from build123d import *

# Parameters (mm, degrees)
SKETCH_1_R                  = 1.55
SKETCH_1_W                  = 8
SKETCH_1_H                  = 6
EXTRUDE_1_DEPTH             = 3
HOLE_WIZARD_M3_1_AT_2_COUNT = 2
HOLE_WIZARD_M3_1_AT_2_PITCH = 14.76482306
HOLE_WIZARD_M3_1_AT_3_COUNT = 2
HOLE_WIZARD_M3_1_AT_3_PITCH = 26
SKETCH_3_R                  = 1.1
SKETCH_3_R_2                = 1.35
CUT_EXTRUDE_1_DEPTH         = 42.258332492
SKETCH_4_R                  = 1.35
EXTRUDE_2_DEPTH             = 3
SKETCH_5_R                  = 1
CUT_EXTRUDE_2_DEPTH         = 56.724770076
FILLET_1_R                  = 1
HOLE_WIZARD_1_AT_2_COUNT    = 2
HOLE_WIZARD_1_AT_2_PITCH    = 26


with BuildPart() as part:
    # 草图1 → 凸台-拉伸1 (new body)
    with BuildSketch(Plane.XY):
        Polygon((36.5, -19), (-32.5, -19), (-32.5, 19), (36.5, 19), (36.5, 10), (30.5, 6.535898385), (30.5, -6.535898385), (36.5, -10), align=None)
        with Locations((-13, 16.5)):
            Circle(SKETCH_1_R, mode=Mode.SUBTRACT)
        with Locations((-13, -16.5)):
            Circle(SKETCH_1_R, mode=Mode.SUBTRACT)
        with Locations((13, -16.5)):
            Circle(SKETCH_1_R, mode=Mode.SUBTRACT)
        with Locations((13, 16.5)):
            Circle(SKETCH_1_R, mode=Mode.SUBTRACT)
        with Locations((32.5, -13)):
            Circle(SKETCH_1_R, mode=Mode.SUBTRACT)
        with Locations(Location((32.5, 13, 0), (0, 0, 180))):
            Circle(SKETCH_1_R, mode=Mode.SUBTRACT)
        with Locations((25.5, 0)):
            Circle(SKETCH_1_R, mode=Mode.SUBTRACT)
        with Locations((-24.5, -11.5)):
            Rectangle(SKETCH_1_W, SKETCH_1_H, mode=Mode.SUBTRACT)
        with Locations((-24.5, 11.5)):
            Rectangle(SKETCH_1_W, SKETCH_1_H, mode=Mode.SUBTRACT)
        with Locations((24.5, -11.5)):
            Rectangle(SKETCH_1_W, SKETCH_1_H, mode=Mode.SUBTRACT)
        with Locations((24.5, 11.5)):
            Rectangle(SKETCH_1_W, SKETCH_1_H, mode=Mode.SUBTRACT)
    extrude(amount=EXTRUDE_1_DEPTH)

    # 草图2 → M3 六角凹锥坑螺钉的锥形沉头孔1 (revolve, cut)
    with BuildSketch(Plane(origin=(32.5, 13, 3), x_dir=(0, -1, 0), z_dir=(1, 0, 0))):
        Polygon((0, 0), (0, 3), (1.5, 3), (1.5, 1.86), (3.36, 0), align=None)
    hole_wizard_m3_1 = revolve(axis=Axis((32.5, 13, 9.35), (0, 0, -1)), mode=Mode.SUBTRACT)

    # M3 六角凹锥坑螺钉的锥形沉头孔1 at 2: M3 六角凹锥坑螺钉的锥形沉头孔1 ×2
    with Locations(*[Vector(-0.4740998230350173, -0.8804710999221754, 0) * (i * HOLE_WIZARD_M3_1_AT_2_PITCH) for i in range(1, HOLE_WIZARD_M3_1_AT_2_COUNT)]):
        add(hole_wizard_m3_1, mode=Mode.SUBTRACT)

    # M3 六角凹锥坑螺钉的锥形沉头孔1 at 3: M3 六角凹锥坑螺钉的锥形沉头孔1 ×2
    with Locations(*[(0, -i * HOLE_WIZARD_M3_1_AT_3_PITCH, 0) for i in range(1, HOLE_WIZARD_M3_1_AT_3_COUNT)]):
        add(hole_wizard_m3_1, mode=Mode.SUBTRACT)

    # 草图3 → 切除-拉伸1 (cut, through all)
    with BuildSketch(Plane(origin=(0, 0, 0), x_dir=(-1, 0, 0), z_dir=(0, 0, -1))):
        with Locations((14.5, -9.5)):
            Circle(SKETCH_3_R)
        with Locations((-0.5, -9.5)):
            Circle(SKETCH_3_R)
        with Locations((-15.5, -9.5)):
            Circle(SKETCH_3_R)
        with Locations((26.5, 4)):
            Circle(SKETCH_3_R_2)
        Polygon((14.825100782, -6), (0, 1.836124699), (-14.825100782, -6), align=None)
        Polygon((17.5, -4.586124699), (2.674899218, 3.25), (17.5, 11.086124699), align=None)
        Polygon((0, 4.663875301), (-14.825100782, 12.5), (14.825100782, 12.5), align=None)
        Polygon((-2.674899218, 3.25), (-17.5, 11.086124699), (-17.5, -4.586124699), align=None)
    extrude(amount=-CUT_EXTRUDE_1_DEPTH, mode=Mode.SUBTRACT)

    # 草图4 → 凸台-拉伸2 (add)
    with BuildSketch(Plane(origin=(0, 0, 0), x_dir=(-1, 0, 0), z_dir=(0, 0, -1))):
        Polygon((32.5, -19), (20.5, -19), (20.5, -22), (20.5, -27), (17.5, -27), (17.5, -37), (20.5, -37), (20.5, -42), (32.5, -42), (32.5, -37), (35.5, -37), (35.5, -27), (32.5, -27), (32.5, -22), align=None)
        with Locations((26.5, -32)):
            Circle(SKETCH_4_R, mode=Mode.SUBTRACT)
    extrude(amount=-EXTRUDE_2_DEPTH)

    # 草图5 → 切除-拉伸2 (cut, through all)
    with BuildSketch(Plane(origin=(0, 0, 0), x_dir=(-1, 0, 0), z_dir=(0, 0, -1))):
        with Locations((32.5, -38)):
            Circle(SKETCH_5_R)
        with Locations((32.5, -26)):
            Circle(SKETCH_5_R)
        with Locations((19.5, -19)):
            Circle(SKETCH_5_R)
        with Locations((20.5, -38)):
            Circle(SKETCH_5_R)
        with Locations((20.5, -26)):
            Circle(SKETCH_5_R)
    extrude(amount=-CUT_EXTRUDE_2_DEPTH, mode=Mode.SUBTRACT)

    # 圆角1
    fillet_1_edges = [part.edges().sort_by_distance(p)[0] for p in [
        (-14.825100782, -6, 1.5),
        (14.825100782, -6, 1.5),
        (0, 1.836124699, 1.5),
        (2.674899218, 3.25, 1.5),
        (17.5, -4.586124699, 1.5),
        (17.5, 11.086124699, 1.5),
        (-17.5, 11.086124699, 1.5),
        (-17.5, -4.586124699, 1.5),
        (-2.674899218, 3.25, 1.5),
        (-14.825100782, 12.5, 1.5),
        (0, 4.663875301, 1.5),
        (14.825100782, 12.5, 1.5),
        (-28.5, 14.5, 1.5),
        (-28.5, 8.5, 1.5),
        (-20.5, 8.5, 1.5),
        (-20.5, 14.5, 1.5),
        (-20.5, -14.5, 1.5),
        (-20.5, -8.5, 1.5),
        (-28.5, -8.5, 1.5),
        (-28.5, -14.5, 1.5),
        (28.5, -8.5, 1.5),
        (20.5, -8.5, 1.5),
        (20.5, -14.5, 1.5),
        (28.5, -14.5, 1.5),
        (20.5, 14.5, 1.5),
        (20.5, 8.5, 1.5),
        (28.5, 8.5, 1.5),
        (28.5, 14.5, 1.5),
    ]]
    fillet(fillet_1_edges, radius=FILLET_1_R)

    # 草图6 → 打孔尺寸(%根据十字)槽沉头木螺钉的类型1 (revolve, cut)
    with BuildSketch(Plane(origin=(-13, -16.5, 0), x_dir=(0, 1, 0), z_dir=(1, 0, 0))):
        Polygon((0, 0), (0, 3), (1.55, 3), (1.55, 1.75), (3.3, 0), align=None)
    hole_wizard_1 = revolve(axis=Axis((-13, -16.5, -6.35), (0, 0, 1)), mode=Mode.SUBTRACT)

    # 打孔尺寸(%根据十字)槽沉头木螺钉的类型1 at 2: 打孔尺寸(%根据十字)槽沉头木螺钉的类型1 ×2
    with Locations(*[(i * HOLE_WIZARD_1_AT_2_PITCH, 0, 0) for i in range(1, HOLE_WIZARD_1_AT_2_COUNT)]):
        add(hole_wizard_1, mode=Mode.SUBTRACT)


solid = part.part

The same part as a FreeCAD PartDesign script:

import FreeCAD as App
import Part
import Sketcher

V = App.Vector
Q = App.Units.Quantity


def edges_at(feature, points):
    """Names of the edges that pass closest to the given points."""
    edges = feature.Shape.Edges
    near = lambda p: min(range(len(edges)), key=lambda i: edges[i].distToShape(Part.Vertex(*p))[0])
    return sorted({f"Edge{near(p) + 1}" for p in points})

doc = App.newDocument("Part")
body = doc.addObject("PartDesign::Body", "Body")

# Sketch on XY plane
sketch1 = body.newObject("Sketcher::SketchObject", "Sketch")
sketch1.AttachmentSupport = (doc.getObject("XY_Plane"), [""])
sketch1.MapMode = "FlatFace"
sketch1.addGeometry(Part.LineSegment(V(-32.5, -19, 0), V(36.5, -19, 0)), False)
sketch1.addGeometry(Part.LineSegment(V(36.5, -19, 0), V(36.5, -10, 0)), False)
sketch1.addGeometry(Part.LineSegment(V(36.5, -10, 0), V(30.5, -6.5, 0)), False)
sketch1.addGeometry(Part.LineSegment(V(30.5, -6.5, 0), V(30.5, 6.5, 0)), False)
sketch1.addGeometry(Part.LineSegment(V(30.5, 6.5, 0), V(36.5, 10, 0)), False)
sketch1.addGeometry(Part.LineSegment(V(36.5, 10, 0), V(36.5, 19, 0)), False)
sketch1.addGeometry(Part.LineSegment(V(36.5, 19, 0), V(-32.5, 19, 0)), False)
sketch1.addGeometry(Part.LineSegment(V(-32.5, 19, 0), V(-32.5, -19, 0)), False)
sketch1.addGeometry(Part.Circle(V(32.5, -13, 0), V(0, 0, 1), 1.6), False)
sketch1.addGeometry(Part.LineSegment(V(20.5, -14.5, 0), V(20.5, -8.5, 0)), False)
sketch1.addGeometry(Part.LineSegment(V(20.5, -8.5, 0), V(28.5, -8.5, 0)), False)
sketch1.addGeometry(Part.LineSegment(V(28.5, -8.5, 0), V(28.5, -14.5, 0)), False)
sketch1.addGeometry(Part.LineSegment(V(28.5, -14.5, 0), V(20.5, -14.5, 0)), False)
sketch1.addGeometry(Part.Circle(V(13, -16.5, 0), V(0, 0, 1), 1.6), False)
sketch1.addGeometry(Part.Circle(V(-13, -16.5, 0), V(0, 0, 1), 1.6), False)
sketch1.addGeometry(Part.LineSegment(V(-28.5, -14.5, 0), V(-28.5, -8.5, 0)), False)
sketch1.addGeometry(Part.LineSegment(V(-28.5, -8.5, 0), V(-20.5, -8.5, 0)), False)
sketch1.addGeometry(Part.LineSegment(V(-20.5, -8.5, 0), V(-20.5, -14.5, 0)), False)
sketch1.addGeometry(Part.LineSegment(V(-20.5, -14.5, 0), V(-28.5, -14.5, 0)), False)
sketch1.addGeometry(Part.Circle(V(25.5, 0, 0), V(0, 0, 1), 1.6), False)
sketch1.addGeometry(Part.Circle(V(32.5, 13, 0), V(0, 0, 1), 1.6), False)
sketch1.addGeometry(Part.LineSegment(V(20.5, 8.5, 0), V(20.5, 14.5, 0)), False)
sketch1.addGeometry(Part.LineSegment(V(20.5, 14.5, 0), V(28.5, 14.5, 0)), False)
sketch1.addGeometry(Part.LineSegment(V(28.5, 14.5, 0), V(28.5, 8.5, 0)), False)
sketch1.addGeometry(Part.LineSegment(V(28.5, 8.5, 0), V(20.5, 8.5, 0)), False)
sketch1.addGeometry(Part.Circle(V(13, 16.5, 0), V(0, 0, 1), 1.6), False)
sketch1.addGeometry(Part.LineSegment(V(-28.5, 8.5, 0), V(-28.5, 14.5, 0)), False)
sketch1.addGeometry(Part.LineSegment(V(-28.5, 14.5, 0), V(-20.5, 14.5, 0)), False)
sketch1.addGeometry(Part.LineSegment(V(-20.5, 14.5, 0), V(-20.5, 8.5, 0)), False)
sketch1.addGeometry(Part.LineSegment(V(-20.5, 8.5, 0), V(-28.5, 8.5, 0)), False)
sketch1.addGeometry(Part.Circle(V(-13, 16.5, 0), V(0, 0, 1), 1.6), False)
sketch1.addConstraint(Sketcher.Constraint("Coincident", 0, 2, 1, 1))
sketch1.addConstraint(Sketcher.Constraint("Coincident", 1, 2, 2, 1))
sketch1.addConstraint(Sketcher.Constraint("Coincident", 2, 2, 3, 1))
sketch1.addConstraint(Sketcher.Constraint("Coincident", 3, 2, 4, 1))
sketch1.addConstraint(Sketcher.Constraint("Coincident", 4, 2, 5, 1))
sketch1.addConstraint(Sketcher.Constraint("Coincident", 5, 2, 6, 1))
sketch1.addConstraint(Sketcher.Constraint("Coincident", 6, 2, 7, 1))
sketch1.addConstraint(Sketcher.Constraint("Coincident", 7, 2, 0, 1))
sketch1.addConstraint(Sketcher.Constraint("Coincident", 9, 2, 10, 1))
sketch1.addConstraint(Sketcher.Constraint("Coincident", 10, 2, 11, 1))
sketch1.addConstraint(Sketcher.Constraint("Coincident", 11, 2, 12, 1))
sketch1.addConstraint(Sketcher.Constraint("Coincident", 12, 2, 9, 1))
sketch1.addConstraint(Sketcher.Constraint("Coincident", 15, 2, 16, 1))
sketch1.addConstraint(Sketcher.Constraint("Coincident", 16, 2, 17, 1))
sketch1.addConstraint(Sketcher.Constraint("Coincident", 17, 2, 18, 1))
sketch1.addConstraint(Sketcher.Constraint("Coincident", 18, 2, 15, 1))
sketch1.addConstraint(Sketcher.Constraint("Coincident", 21, 2, 22, 1))
sketch1.addConstraint(Sketcher.Constraint("Coincident", 22, 2, 23, 1))
sketch1.addConstraint(Sketcher.Constraint("Coincident", 23, 2, 24, 1))
sketch1.addConstraint(Sketcher.Constraint("Coincident", 24, 2, 21, 1))
sketch1.addConstraint(Sketcher.Constraint("Coincident", 26, 2, 27, 1))
sketch1.addConstraint(Sketcher.Constraint("Coincident", 27, 2, 28, 1))
sketch1.addConstraint(Sketcher.Constraint("Coincident", 28, 2, 29, 1))
sketch1.addConstraint(Sketcher.Constraint("Coincident", 29, 2, 26, 1))
sketch1.addConstraint(Sketcher.Constraint("Horizontal", 0))
sketch1.addConstraint(Sketcher.Constraint("Vertical", 1))
sketch1.addConstraint(Sketcher.Constraint("Vertical", 3))
sketch1.addConstraint(Sketcher.Constraint("Vertical", 5))
sketch1.addConstraint(Sketcher.Constraint("Horizontal", 6))
sketch1.addConstraint(Sketcher.Constraint("Vertical", 7))
sketch1.addConstraint(Sketcher.Constraint("Vertical", 9))
sketch1.addConstraint(Sketcher.Constraint("Horizontal", 10))
sketch1.addConstraint(Sketcher.Constraint("Vertical", 11))
sketch1.addConstraint(Sketcher.Constraint("Horizontal", 12))
sketch1.addConstraint(Sketcher.Constraint("Vertical", 15))
sketch1.addConstraint(Sketcher.Constraint("Horizontal", 16))
sketch1.addConstraint(Sketcher.Constraint("Vertical", 17))
sketch1.addConstraint(Sketcher.Constraint("Horizontal", 18))
sketch1.addConstraint(Sketcher.Constraint("Vertical", 21))
sketch1.addConstraint(Sketcher.Constraint("Horizontal", 22))
sketch1.addConstraint(Sketcher.Constraint("Vertical", 23))
sketch1.addConstraint(Sketcher.Constraint("Horizontal", 24))
sketch1.addConstraint(Sketcher.Constraint("Vertical", 26))
sketch1.addConstraint(Sketcher.Constraint("Horizontal", 27))
sketch1.addConstraint(Sketcher.Constraint("Vertical", 28))
sketch1.addConstraint(Sketcher.Constraint("Horizontal", 29))
sketch1.addConstraint(Sketcher.Constraint("Equal", 8, 13))
sketch1.addConstraint(Sketcher.Constraint("Equal", 13, 14))
sketch1.addConstraint(Sketcher.Constraint("Equal", 14, 19))
sketch1.addConstraint(Sketcher.Constraint("Equal", 19, 20))
sketch1.addConstraint(Sketcher.Constraint("Equal", 20, 25))
sketch1.addConstraint(Sketcher.Constraint("Equal", 25, 30))
sketch1.addConstraint(Sketcher.Constraint("Symmetric", 14, 3, 25, 3, -1, 1))
sketch1.addConstraint(Sketcher.Constraint("Symmetric", 13, 3, 30, 3, -1, 1))
sketch1.addConstraint(Sketcher.Constraint("Symmetric", 17, 2, 21, 2, -1, 1))
sketch1.addConstraint(Sketcher.Constraint("Symmetric", 15, 2, 23, 2, -1, 1))
sketch1.addConstraint(Sketcher.Constraint("Symmetric", 11, 2, 26, 2, -1, 1))
sketch1.addConstraint(Sketcher.Constraint("Symmetric", 9, 2, 28, 2, -1, 1))
sketch1.addConstraint(Sketcher.Constraint("Symmetric", 13, 3, 14, 3, -2))
sketch1.addConstraint(Sketcher.Constraint("Symmetric", 10, 2, 15, 2, -2))
sketch1.addConstraint(Sketcher.Constraint("Symmetric", 12, 2, 17, 2, -2))
sketch1.addConstraint(Sketcher.Constraint("Symmetric", 8, 3, 20, 3, -1))
sketch1.addConstraint(Sketcher.Constraint("Symmetric", 1, 2, 4, 2, -1))
sketch1.addConstraint(Sketcher.Constraint("PointOnObject", 19, 3, -1))
sketch1.addConstraint(Sketcher.Constraint("Equal", 1, 5))
sketch1.addConstraint(Sketcher.Constraint("Equal", 2, 4))
sketch1.addConstraint(Sketcher.Constraint("Diameter", 8, 3.1))
sketch1.addConstraint(Sketcher.Constraint("DistanceX", 0, 1, 0, 2, 69.0))
sketch1.addConstraint(Sketcher.Constraint("DistanceX", 10, 1, 10, 2, 8.0))
sketch1.addConstraint(Sketcher.Constraint("DistanceY", 1, 1, 1, 2, 9.0))
sketch1.addConstraint(Sketcher.Constraint("DistanceY", 7, 2, 7, 1, 38.0))
sketch1.addConstraint(Sketcher.Constraint("DistanceY", 9, 1, 9, 2, 6.0))
sketch1.addConstraint(Sketcher.Constraint("Angle", 2, Q("150 deg")))
sketch1.addConstraint(Sketcher.Constraint("DistanceY", 8, 3, -1, 1, 13.0))
sketch1.addConstraint(Sketcher.Constraint("DistanceX", -1, 1, 13, 3, 13.0))
sketch1.addConstraint(Sketcher.Constraint("DistanceX", 19, 3, 8, 3, 7.0))
sketch1.addConstraint(Sketcher.Constraint("DistanceY", 13, 3, 25, 3, 33.0))
sketch1.addConstraint(Sketcher.Constraint("DistanceX", 8, 3, 0, 2, 4.0))
sketch1.addConstraint(Sketcher.Constraint("DistanceX", 2, 2, 8, 3, 2.0))
sketch1.addConstraint(Sketcher.Constraint("DistanceX", 9, 2, 19, 3, 5.0))
sketch1.addConstraint(Sketcher.Constraint("DistanceY", 13, 3, 9, 2, 8.0))
sketch1.addConstraint(Sketcher.Constraint("DistanceX", 7, 2, 15, 2, 4.0))
pad1 = body.newObject("PartDesign::Pad", "Pad")
pad1.Profile = sketch1
pad1.Length = 3

# Sketch on YZ plane
sketch2 = body.newObject("Sketcher::SketchObject", "Sketch001")
sketch2.AttachmentSupport = (doc.getObject("YZ_Plane"), [""])
sketch2.MapMode = "FlatFace"
sketch2.AttachmentOffset = App.Placement(V(0, 0, 32.5), App.Rotation())
sketch2.addGeometry(Part.LineSegment(V(13, 0, 0), V(13, 3, 0)), False)
sketch2.addGeometry(Part.LineSegment(V(13, 3, 0), V(9.6, 3, 0)), False)
sketch2.addGeometry(Part.LineSegment(V(9.6, 3, 0), V(11.5, 1.1, 0)), False)
sketch2.addGeometry(Part.LineSegment(V(11.5, 1.1, 0), V(11.5, 0, 0)), False)
sketch2.addGeometry(Part.LineSegment(V(11.5, 0, 0), V(13, 0, 0)), False)
sketch2.addGeometry(Part.LineSegment(V(13, 3, 0), V(13, 0, 0)), True)  # axis
sketch2.addConstraint(Sketcher.Constraint("Coincident", 0, 2, 1, 1))
sketch2.addConstraint(Sketcher.Constraint("Coincident", 1, 2, 2, 1))
sketch2.addConstraint(Sketcher.Constraint("Coincident", 2, 2, 3, 1))
sketch2.addConstraint(Sketcher.Constraint("Coincident", 3, 2, 4, 1))
sketch2.addConstraint(Sketcher.Constraint("Coincident", 4, 2, 0, 1))
sketch2.addConstraint(Sketcher.Constraint("Vertical", 0))
sketch2.addConstraint(Sketcher.Constraint("Horizontal", 1))
sketch2.addConstraint(Sketcher.Constraint("Vertical", 3))
sketch2.addConstraint(Sketcher.Constraint("Horizontal", 4))
sketch2.addConstraint(Sketcher.Constraint("Vertical", 5))
sketch2.addConstraint(Sketcher.Constraint("Coincident", 5, 1, 0, 2))
sketch2.addConstraint(Sketcher.Constraint("PointOnObject", 3, 2, -1))
sketch2.addConstraint(Sketcher.Constraint("PointOnObject", 5, 2, -1))
sketch2.addConstraint(Sketcher.Constraint("DistanceY", 0, 1, 0, 2, 3.0))
sketch2.addConstraint(Sketcher.Constraint("Angle", 2, Q("-45 deg")))
sketch2.addConstraint(Sketcher.Constraint("DistanceX", 4, 1, 4, 2, 1.5))
sketch2.addConstraint(Sketcher.Constraint("DistanceX", -1, 1, 0, 2, 13.0))
sketch2.addConstraint(Sketcher.Constraint("DistanceX", 1, 2, 1, 1, 3.36))
groove = body.newObject("PartDesign::Groove", "Groove")
groove.Profile = sketch2
groove.ReferenceAxis = (sketch2, ["Axis0"])
groove.Angle = 360
doc.recompute()

datumline = body.newObject("PartDesign::Line", "DatumLine")
datumline.Placement = App.Placement(V(0, 0, 0), App.Rotation(V(0, 0, 1), V(-0.474099823, -0.8804711, 0)))
linearpattern = body.newObject("PartDesign::LinearPattern", "LinearPattern")
linearpattern.Originals = [groove]
linearpattern.Direction = (datumline, [""])
linearpattern.Mode = "offset"
linearpattern.Offset = 14.764823
linearpattern.Occurrences = 2
body.Tip = linearpattern
doc.recompute()

linearpattern2 = body.newObject("PartDesign::LinearPattern", "LinearPattern001")
linearpattern2.Originals = [groove]
linearpattern2.Direction = (doc.getObject("Y_Axis"), [""])
linearpattern2.Mode = "offset"
linearpattern2.Offset = 26
linearpattern2.Occurrences = 2
linearpattern2.Reversed = True
body.Tip = linearpattern2

# Sketch on XY plane
sketch3 = body.newObject("Sketcher::SketchObject", "Sketch002")
sketch3.AttachmentSupport = (doc.getObject("XY_Plane"), [""])
sketch3.MapMode = "FlatFace"
sketch3.addGeometry(Part.Circle(V(-14.5, -9.5, 0), V(0, 0, 1), 1.1), False)
sketch3.addGeometry(Part.Circle(V(0.5, -9.5, 0), V(0, 0, 1), 1.1), False)
sketch3.addGeometry(Part.Circle(V(15.5, -9.5, 0), V(0, 0, 1), 1.1), False)
sketch3.addGeometry(Part.Circle(V(-26.5, 4, 0), V(0, 0, 1), 1.4), False)
sketch3.addGeometry(Part.LineSegment(V(-14.8, -6, 0), V(0, 1.8, 0)), False)
sketch3.addGeometry(Part.LineSegment(V(0, 1.8, 0), V(14.8, -6, 0)), False)
sketch3.addGeometry(Part.LineSegment(V(14.8, -6, 0), V(-14.8, -6, 0)), False)
sketch3.addGeometry(Part.LineSegment(V(-2.7, 3.2, 0), V(-17.5, -4.6, 0)), False)
sketch3.addGeometry(Part.LineSegment(V(-17.5, -4.6, 0), V(-17.5, 11.1, 0)), False)
sketch3.addGeometry(Part.LineSegment(V(-17.5, 11.1, 0), V(-2.7, 3.2, 0)), False)
sketch3.addGeometry(Part.LineSegment(V(14.8, 12.5, 0), V(0, 4.7, 0)), False)
sketch3.addGeometry(Part.LineSegment(V(0, 4.7, 0), V(-14.8, 12.5, 0)), False)
sketch3.addGeometry(Part.LineSegment(V(-14.8, 12.5, 0), V(14.8, 12.5, 0)), False)
sketch3.addGeometry(Part.LineSegment(V(2.7, 3.2, 0), V(17.5, 11.1, 0)), False)
sketch3.addGeometry(Part.LineSegment(V(17.5, 11.1, 0), V(17.5, -4.6, 0)), False)
sketch3.addGeometry(Part.LineSegment(V(17.5, -4.6, 0), V(2.7, 3.2, 0)), False)
sketch3.addConstraint(Sketcher.Constraint("Coincident", 4, 2, 5, 1))
sketch3.addConstraint(Sketcher.Constraint("Coincident", 5, 2, 6, 1))
sketch3.addConstraint(Sketcher.Constraint("Coincident", 6, 2, 4, 1))
sketch3.addConstraint(Sketcher.Constraint("Coincident", 7, 2, 8, 1))
sketch3.addConstraint(Sketcher.Constraint("Coincident", 8, 2, 9, 1))
sketch3.addConstraint(Sketcher.Constraint("Coincident", 9, 2, 7, 1))
sketch3.addConstraint(Sketcher.Constraint("Coincident", 10, 2, 11, 1))
sketch3.addConstraint(Sketcher.Constraint("Coincident", 11, 2, 12, 1))
sketch3.addConstraint(Sketcher.Constraint("Coincident", 12, 2, 10, 1))
sketch3.addConstraint(Sketcher.Constraint("Coincident", 13, 2, 14, 1))
sketch3.addConstraint(Sketcher.Constraint("Coincident", 14, 2, 15, 1))
sketch3.addConstraint(Sketcher.Constraint("Coincident", 15, 2, 13, 1))
sketch3.addConstraint(Sketcher.Constraint("Horizontal", 6))
sketch3.addConstraint(Sketcher.Constraint("Vertical", 8))
sketch3.addConstraint(Sketcher.Constraint("Horizontal", 12))
sketch3.addConstraint(Sketcher.Constraint("Vertical", 14))
sketch3.addConstraint(Sketcher.Constraint("Equal", 0, 1))
sketch3.addConstraint(Sketcher.Constraint("Equal", 1, 2))
sketch3.addConstraint(Sketcher.Constraint("Symmetric", 8, 2, 13, 2, -2))
sketch3.addConstraint(Sketcher.Constraint("Symmetric", 9, 2, 15, 2, -2))
sketch3.addConstraint(Sketcher.Constraint("PointOnObject", 4, 2, -2))
sketch3.addConstraint(Sketcher.Constraint("PointOnObject", 10, 2, -2))
sketch3.addConstraint(Sketcher.Constraint("Parallel", 4, 7))
sketch3.addConstraint(Sketcher.Constraint("Parallel", 5, 9))
sketch3.addConstraint(Sketcher.Constraint("Parallel", 7, 10))
sketch3.addConstraint(Sketcher.Constraint("Parallel", 9, 11))
sketch3.addConstraint(Sketcher.Constraint("Parallel", 10, 13))
sketch3.addConstraint(Sketcher.Constraint("Parallel", 11, 15))
sketch3.addConstraint(Sketcher.Constraint("Horizontal", 0, 3, 1, 3))
sketch3.addConstraint(Sketcher.Constraint("Horizontal", 1, 3, 2, 3))
sketch3.addConstraint(Sketcher.Constraint("Vertical", 6, 2, 11, 2))
sketch3.addConstraint(Sketcher.Constraint("Equal", 5, 7))
sketch3.addConstraint(Sketcher.Constraint("Diameter", 0, 2.2))
sketch3.addConstraint(Sketcher.Constraint("Diameter", 3, 2.7))
sketch3.addConstraint(Sketcher.Constraint("DistanceY", -1, 1, 3, 3, 4.0))
sketch3.addConstraint(Sketcher.Constraint("DistanceY", 5, 2, -1, 1, 6.0))
sketch3.addConstraint(Sketcher.Constraint("DistanceX", 0, 3, 1, 3, 15.0))
sketch3.addConstraint(Sketcher.Constraint("DistanceX", 1, 3, 2, 3, 15.0))
sketch3.addConstraint(Sketcher.Constraint("DistanceX", 3, 3, 0, 3, 12.0))
sketch3.addConstraint(Sketcher.Constraint("DistanceX", 7, 2, 0, 3, 3.0))
sketch3.addConstraint(Sketcher.Constraint("DistanceY", 2, 3, 12, 2, 22.0))
sketch3.addConstraint(Sketcher.Constraint("DistanceX", 2, 3, 13, 2, 2.0))
sketch3.addConstraint(Sketcher.Constraint("DistanceY", 0, 3, -1, 1, 9.5))
sketch3.addConstraint(Sketcher.Constraint("DistanceY", -1, 1, 9, 2, 3.25))
sketch3.addConstraint(Sketcher.Constraint("DistanceX", 6, 2, 6, 1, 29.650202))
sketch3.addConstraint(Sketcher.Constraint("DistanceY", 8, 1, 8, 2, 15.672249))
pocket1 = body.newObject("PartDesign::Pocket", "Pocket")
pocket1.Profile = sketch3
pocket1.Type = "ThroughAll"
pocket1.Reversed = True

# Sketch on XY plane
sketch4 = body.newObject("Sketcher::SketchObject", "Sketch003")
sketch4.AttachmentSupport = (doc.getObject("XY_Plane"), [""])
sketch4.MapMode = "FlatFace"
sketch4.addGeometry(Part.LineSegment(V(-32.5, -19, 0), V(-20.5, -19, 0)), False)
sketch4.addGeometry(Part.LineSegment(V(-20.5, -19, 0), V(-20.5, -27, 0)), False)
sketch4.addGeometry(Part.LineSegment(V(-20.5, -27, 0), V(-17.5, -27, 0)), False)
sketch4.addGeometry(Part.LineSegment(V(-17.5, -27, 0), V(-17.5, -37, 0)), False)
sketch4.addGeometry(Part.LineSegment(V(-17.5, -37, 0), V(-20.5, -37, 0)), False)
sketch4.addGeometry(Part.LineSegment(V(-20.5, -37, 0), V(-20.5, -42, 0)), False)
sketch4.addGeometry(Part.LineSegment(V(-20.5, -42, 0), V(-32.5, -42, 0)), False)
sketch4.addGeometry(Part.LineSegment(V(-32.5, -42, 0), V(-32.5, -37, 0)), False)
sketch4.addGeometry(Part.LineSegment(V(-32.5, -37, 0), V(-35.5, -37, 0)), False)
sketch4.addGeometry(Part.LineSegment(V(-35.5, -37, 0), V(-35.5, -27, 0)), False)
sketch4.addGeometry(Part.LineSegment(V(-35.5, -27, 0), V(-32.5, -27, 0)), False)
sketch4.addGeometry(Part.LineSegment(V(-32.5, -27, 0), V(-32.5, -19, 0)), False)
sketch4.addGeometry(Part.Circle(V(-26.5, -32, 0), V(0, 0, 1), 1.4), False)
sketch4.addConstraint(Sketcher.Constraint("Coincident", 0, 2, 1, 1))
sketch4.addConstraint(Sketcher.Constraint("Coincident", 1, 2, 2, 1))
sketch4.addConstraint(Sketcher.Constraint("Coincident", 2, 2, 3, 1))
sketch4.addConstraint(Sketcher.Constraint("Coincident", 3, 2, 4, 1))
sketch4.addConstraint(Sketcher.Constraint("Coincident", 4, 2, 5, 1))
sketch4.addConstraint(Sketcher.Constraint("Coincident", 5, 2, 6, 1))
sketch4.addConstraint(Sketcher.Constraint("Coincident", 6, 2, 7, 1))
sketch4.addConstraint(Sketcher.Constraint("Coincident", 7, 2, 8, 1))
sketch4.addConstraint(Sketcher.Constraint("Coincident", 8, 2, 9, 1))
sketch4.addConstraint(Sketcher.Constraint("Coincident", 9, 2, 10, 1))
sketch4.addConstraint(Sketcher.Constraint("Coincident", 10, 2, 11, 1))
sketch4.addConstraint(Sketcher.Constraint("Coincident", 11, 2, 0, 1))
sketch4.addConstraint(Sketcher.Constraint("Horizontal", 0))
sketch4.addConstraint(Sketcher.Constraint("Vertical", 1))
sketch4.addConstraint(Sketcher.Constraint("Horizontal", 2))
sketch4.addConstraint(Sketcher.Constraint("Vertical", 3))
sketch4.addConstraint(Sketcher.Constraint("Horizontal", 4))
sketch4.addConstraint(Sketcher.Constraint("Vertical", 5))
sketch4.addConstraint(Sketcher.Constraint("Horizontal", 6))
sketch4.addConstraint(Sketcher.Constraint("Vertical", 7))
sketch4.addConstraint(Sketcher.Constraint("Horizontal", 8))
sketch4.addConstraint(Sketcher.Constraint("Vertical", 9))
sketch4.addConstraint(Sketcher.Constraint("Horizontal", 10))
sketch4.addConstraint(Sketcher.Constraint("Vertical", 11))
sketch4.addConstraint(Sketcher.Constraint("Horizontal", 4, 2, 7, 2))
sketch4.addConstraint(Sketcher.Constraint("Horizontal", 2, 2, 9, 2))
sketch4.addConstraint(Sketcher.Constraint("Vertical", 1, 2, 4, 2))
sketch4.addConstraint(Sketcher.Constraint("Vertical", 7, 2, 10, 2))
sketch4.addConstraint(Sketcher.Constraint("Equal", 4, 8))
sketch4.addConstraint(Sketcher.Constraint("Diameter", 12, 2.7))
sketch4.addConstraint(Sketcher.Constraint("DistanceX", 0, 1, 0, 2, 12.0))
sketch4.addConstraint(Sketcher.Constraint("DistanceX", 2, 1, 2, 2, 3.0))
sketch4.addConstraint(Sketcher.Constraint("DistanceY", 1, 2, 1, 1, 8.0))
sketch4.addConstraint(Sketcher.Constraint("DistanceY", 3, 2, 3, 1, 10.0))
sketch4.addConstraint(Sketcher.Constraint("DistanceY", 5, 2, 5, 1, 5.0))
sketch4.addConstraint(Sketcher.Constraint("DistanceY", 12, 3, -1, 1, 32.0))
sketch4.addConstraint(Sketcher.Constraint("DistanceY", 0, 2, -1, 1, 19.0))
sketch4.addConstraint(Sketcher.Constraint("DistanceX", 12, 3, 0, 2, 6.0))
sketch4.addConstraint(Sketcher.Constraint("DistanceX", 12, 3, -1, 1, 26.5))
pad2 = body.newObject("PartDesign::Pad", "Pad001")
pad2.Profile = sketch4
pad2.Length = 3

# Sketch on XY plane
sketch5 = body.newObject("Sketcher::SketchObject", "Sketch004")
sketch5.AttachmentSupport = (doc.getObject("XY_Plane"), [""])
sketch5.MapMode = "FlatFace"
sketch5.addGeometry(Part.Circle(V(-32.5, -38, 0), V(0, 0, 1), 1), False)
sketch5.addGeometry(Part.Circle(V(-32.5, -26, 0), V(0, 0, 1), 1), False)
sketch5.addGeometry(Part.Circle(V(-19.5, -19, 0), V(0, 0, 1), 1), False)
sketch5.addGeometry(Part.Circle(V(-20.5, -38, 0), V(0, 0, 1), 1), False)
sketch5.addGeometry(Part.Circle(V(-20.5, -26, 0), V(0, 0, 1), 1), False)
sketch5.addConstraint(Sketcher.Constraint("Equal", 0, 1))
sketch5.addConstraint(Sketcher.Constraint("Equal", 1, 2))
sketch5.addConstraint(Sketcher.Constraint("Equal", 2, 3))
sketch5.addConstraint(Sketcher.Constraint("Equal", 3, 4))
sketch5.addConstraint(Sketcher.Constraint("Horizontal", 0, 3, 3, 3))
sketch5.addConstraint(Sketcher.Constraint("Horizontal", 1, 3, 4, 3))
sketch5.addConstraint(Sketcher.Constraint("Vertical", 0, 3, 1, 3))
sketch5.addConstraint(Sketcher.Constraint("Vertical", 3, 3, 4, 3))
sketch5.addConstraint(Sketcher.Constraint("Diameter", 0, 2.0))
sketch5.addConstraint(Sketcher.Constraint("DistanceY", 0, 3, -1, 1, 38.0))
sketch5.addConstraint(Sketcher.Constraint("DistanceY", 1, 3, -1, 1, 26.0))
sketch5.addConstraint(Sketcher.Constraint("DistanceY", 2, 3, -1, 1, 19.0))
sketch5.addConstraint(Sketcher.Constraint("DistanceX", 1, 3, 2, 3, 13.0))
sketch5.addConstraint(Sketcher.Constraint("DistanceX", 0, 3, 3, 3, 12.0))
sketch5.addConstraint(Sketcher.Constraint("DistanceX", 0, 3, -1, 1, 32.5))
pocket2 = body.newObject("PartDesign::Pocket", "Pocket001")
pocket2.Profile = sketch5
pocket2.Type = "ThroughAll"
pocket2.Reversed = True
doc.recompute()

fillet = body.newObject("PartDesign::Fillet", "Fillet")
fillet.Base = (pocket2, edges_at(pocket2, [
    (-14.825, -6, 1.5),
    (14.825, -6, 1.5),
    (0, 1.836, 1.5),
    (2.675, 3.25, 1.5),
    (17.5, -4.586, 1.5),
    (17.5, 11.086, 1.5),
    (-17.5, 11.086, 1.5),
    (-17.5, -4.586, 1.5),
    (-2.675, 3.25, 1.5),
    (-14.825, 12.5, 1.5),
    (0, 4.664, 1.5),
    (14.825, 12.5, 1.5),
    (-28.5, 14.5, 1.5),
    (-28.5, 8.5, 1.5),
    (-20.5, 8.5, 1.5),
    (-20.5, 14.5, 1.5),
    (-20.5, -14.5, 1.5),
    (-20.5, -8.5, 1.5),
    (-28.5, -8.5, 1.5),
    (-28.5, -14.5, 1.5),
    (28.5, -8.5, 1.5),
    (20.5, -8.5, 1.5),
    (20.5, -14.5, 1.5),
    (28.5, -14.5, 1.5),
    (20.5, 14.5, 1.5),
    (20.5, 8.5, 1.5),
    (28.5, 8.5, 1.5),
    (28.5, 14.5, 1.5),
]))
fillet.Radius = 1

# Sketch on YZ plane
sketch6 = body.newObject("Sketcher::SketchObject", "Sketch005")
sketch6.AttachmentSupport = (doc.getObject("YZ_Plane"), [""])
sketch6.MapMode = "FlatFace"
sketch6.AttachmentOffset = App.Placement(V(0, 0, -13), App.Rotation())
sketch6.addGeometry(Part.LineSegment(V(-16.5, 3, 0), V(-16.5, 0, 0)), False)
sketch6.addGeometry(Part.LineSegment(V(-16.5, 0, 0), V(-13.2, 0, 0)), False)
sketch6.addGeometry(Part.LineSegment(V(-13.2, 0, 0), V(-14.9, 1.8, 0)), False)
sketch6.addGeometry(Part.LineSegment(V(-14.9, 1.8, 0), V(-14.9, 3, 0)), False)
sketch6.addGeometry(Part.LineSegment(V(-14.9, 3, 0), V(-16.5, 3, 0)), False)
sketch6.addGeometry(Part.LineSegment(V(-16.5, 0, 0), V(-16.5, 3, 0)), True)  # axis
sketch6.addConstraint(Sketcher.Constraint("Coincident", 0, 2, 1, 1))
sketch6.addConstraint(Sketcher.Constraint("Coincident", 1, 2, 2, 1))
sketch6.addConstraint(Sketcher.Constraint("Coincident", 2, 2, 3, 1))
sketch6.addConstraint(Sketcher.Constraint("Coincident", 3, 2, 4, 1))
sketch6.addConstraint(Sketcher.Constraint("Coincident", 4, 2, 0, 1))
sketch6.addConstraint(Sketcher.Constraint("Vertical", 0))
sketch6.addConstraint(Sketcher.Constraint("Horizontal", 1))
sketch6.addConstraint(Sketcher.Constraint("Vertical", 3))
sketch6.addConstraint(Sketcher.Constraint("Horizontal", 4))
sketch6.addConstraint(Sketcher.Constraint("Vertical", 5))
sketch6.addConstraint(Sketcher.Constraint("Coincident", 5, 1, 0, 2))
sketch6.addConstraint(Sketcher.Constraint("PointOnObject", 0, 2, -1))
sketch6.addConstraint(Sketcher.Constraint("Horizontal", 3, 2, 5, 2))
sketch6.addConstraint(Sketcher.Constraint("DistanceY", 0, 2, 0, 1, 3.0))
sketch6.addConstraint(Sketcher.Constraint("Angle", 2, Q("135 deg")))
sketch6.addConstraint(Sketcher.Constraint("DistanceX", 1, 1, 1, 2, 3.3))
sketch6.addConstraint(Sketcher.Constraint("DistanceX", 4, 2, 4, 1, 1.55))
sketch6.addConstraint(Sketcher.Constraint("DistanceX", 0, 2, -1, 1, 16.5))
groove2 = body.newObject("PartDesign::Groove", "Groove001")
groove2.Profile = sketch6
groove2.ReferenceAxis = (sketch6, ["Axis0"])
groove2.Angle = 360
doc.recompute()

linearpattern3 = body.newObject("PartDesign::LinearPattern", "LinearPattern002")
linearpattern3.Originals = [groove2]
linearpattern3.Direction = (doc.getObject("X_Axis"), [""])
linearpattern3.Mode = "offset"
linearpattern3.Offset = 26
linearpattern3.Occurrences = 2
body.Tip = linearpattern3

doc.recompute()
